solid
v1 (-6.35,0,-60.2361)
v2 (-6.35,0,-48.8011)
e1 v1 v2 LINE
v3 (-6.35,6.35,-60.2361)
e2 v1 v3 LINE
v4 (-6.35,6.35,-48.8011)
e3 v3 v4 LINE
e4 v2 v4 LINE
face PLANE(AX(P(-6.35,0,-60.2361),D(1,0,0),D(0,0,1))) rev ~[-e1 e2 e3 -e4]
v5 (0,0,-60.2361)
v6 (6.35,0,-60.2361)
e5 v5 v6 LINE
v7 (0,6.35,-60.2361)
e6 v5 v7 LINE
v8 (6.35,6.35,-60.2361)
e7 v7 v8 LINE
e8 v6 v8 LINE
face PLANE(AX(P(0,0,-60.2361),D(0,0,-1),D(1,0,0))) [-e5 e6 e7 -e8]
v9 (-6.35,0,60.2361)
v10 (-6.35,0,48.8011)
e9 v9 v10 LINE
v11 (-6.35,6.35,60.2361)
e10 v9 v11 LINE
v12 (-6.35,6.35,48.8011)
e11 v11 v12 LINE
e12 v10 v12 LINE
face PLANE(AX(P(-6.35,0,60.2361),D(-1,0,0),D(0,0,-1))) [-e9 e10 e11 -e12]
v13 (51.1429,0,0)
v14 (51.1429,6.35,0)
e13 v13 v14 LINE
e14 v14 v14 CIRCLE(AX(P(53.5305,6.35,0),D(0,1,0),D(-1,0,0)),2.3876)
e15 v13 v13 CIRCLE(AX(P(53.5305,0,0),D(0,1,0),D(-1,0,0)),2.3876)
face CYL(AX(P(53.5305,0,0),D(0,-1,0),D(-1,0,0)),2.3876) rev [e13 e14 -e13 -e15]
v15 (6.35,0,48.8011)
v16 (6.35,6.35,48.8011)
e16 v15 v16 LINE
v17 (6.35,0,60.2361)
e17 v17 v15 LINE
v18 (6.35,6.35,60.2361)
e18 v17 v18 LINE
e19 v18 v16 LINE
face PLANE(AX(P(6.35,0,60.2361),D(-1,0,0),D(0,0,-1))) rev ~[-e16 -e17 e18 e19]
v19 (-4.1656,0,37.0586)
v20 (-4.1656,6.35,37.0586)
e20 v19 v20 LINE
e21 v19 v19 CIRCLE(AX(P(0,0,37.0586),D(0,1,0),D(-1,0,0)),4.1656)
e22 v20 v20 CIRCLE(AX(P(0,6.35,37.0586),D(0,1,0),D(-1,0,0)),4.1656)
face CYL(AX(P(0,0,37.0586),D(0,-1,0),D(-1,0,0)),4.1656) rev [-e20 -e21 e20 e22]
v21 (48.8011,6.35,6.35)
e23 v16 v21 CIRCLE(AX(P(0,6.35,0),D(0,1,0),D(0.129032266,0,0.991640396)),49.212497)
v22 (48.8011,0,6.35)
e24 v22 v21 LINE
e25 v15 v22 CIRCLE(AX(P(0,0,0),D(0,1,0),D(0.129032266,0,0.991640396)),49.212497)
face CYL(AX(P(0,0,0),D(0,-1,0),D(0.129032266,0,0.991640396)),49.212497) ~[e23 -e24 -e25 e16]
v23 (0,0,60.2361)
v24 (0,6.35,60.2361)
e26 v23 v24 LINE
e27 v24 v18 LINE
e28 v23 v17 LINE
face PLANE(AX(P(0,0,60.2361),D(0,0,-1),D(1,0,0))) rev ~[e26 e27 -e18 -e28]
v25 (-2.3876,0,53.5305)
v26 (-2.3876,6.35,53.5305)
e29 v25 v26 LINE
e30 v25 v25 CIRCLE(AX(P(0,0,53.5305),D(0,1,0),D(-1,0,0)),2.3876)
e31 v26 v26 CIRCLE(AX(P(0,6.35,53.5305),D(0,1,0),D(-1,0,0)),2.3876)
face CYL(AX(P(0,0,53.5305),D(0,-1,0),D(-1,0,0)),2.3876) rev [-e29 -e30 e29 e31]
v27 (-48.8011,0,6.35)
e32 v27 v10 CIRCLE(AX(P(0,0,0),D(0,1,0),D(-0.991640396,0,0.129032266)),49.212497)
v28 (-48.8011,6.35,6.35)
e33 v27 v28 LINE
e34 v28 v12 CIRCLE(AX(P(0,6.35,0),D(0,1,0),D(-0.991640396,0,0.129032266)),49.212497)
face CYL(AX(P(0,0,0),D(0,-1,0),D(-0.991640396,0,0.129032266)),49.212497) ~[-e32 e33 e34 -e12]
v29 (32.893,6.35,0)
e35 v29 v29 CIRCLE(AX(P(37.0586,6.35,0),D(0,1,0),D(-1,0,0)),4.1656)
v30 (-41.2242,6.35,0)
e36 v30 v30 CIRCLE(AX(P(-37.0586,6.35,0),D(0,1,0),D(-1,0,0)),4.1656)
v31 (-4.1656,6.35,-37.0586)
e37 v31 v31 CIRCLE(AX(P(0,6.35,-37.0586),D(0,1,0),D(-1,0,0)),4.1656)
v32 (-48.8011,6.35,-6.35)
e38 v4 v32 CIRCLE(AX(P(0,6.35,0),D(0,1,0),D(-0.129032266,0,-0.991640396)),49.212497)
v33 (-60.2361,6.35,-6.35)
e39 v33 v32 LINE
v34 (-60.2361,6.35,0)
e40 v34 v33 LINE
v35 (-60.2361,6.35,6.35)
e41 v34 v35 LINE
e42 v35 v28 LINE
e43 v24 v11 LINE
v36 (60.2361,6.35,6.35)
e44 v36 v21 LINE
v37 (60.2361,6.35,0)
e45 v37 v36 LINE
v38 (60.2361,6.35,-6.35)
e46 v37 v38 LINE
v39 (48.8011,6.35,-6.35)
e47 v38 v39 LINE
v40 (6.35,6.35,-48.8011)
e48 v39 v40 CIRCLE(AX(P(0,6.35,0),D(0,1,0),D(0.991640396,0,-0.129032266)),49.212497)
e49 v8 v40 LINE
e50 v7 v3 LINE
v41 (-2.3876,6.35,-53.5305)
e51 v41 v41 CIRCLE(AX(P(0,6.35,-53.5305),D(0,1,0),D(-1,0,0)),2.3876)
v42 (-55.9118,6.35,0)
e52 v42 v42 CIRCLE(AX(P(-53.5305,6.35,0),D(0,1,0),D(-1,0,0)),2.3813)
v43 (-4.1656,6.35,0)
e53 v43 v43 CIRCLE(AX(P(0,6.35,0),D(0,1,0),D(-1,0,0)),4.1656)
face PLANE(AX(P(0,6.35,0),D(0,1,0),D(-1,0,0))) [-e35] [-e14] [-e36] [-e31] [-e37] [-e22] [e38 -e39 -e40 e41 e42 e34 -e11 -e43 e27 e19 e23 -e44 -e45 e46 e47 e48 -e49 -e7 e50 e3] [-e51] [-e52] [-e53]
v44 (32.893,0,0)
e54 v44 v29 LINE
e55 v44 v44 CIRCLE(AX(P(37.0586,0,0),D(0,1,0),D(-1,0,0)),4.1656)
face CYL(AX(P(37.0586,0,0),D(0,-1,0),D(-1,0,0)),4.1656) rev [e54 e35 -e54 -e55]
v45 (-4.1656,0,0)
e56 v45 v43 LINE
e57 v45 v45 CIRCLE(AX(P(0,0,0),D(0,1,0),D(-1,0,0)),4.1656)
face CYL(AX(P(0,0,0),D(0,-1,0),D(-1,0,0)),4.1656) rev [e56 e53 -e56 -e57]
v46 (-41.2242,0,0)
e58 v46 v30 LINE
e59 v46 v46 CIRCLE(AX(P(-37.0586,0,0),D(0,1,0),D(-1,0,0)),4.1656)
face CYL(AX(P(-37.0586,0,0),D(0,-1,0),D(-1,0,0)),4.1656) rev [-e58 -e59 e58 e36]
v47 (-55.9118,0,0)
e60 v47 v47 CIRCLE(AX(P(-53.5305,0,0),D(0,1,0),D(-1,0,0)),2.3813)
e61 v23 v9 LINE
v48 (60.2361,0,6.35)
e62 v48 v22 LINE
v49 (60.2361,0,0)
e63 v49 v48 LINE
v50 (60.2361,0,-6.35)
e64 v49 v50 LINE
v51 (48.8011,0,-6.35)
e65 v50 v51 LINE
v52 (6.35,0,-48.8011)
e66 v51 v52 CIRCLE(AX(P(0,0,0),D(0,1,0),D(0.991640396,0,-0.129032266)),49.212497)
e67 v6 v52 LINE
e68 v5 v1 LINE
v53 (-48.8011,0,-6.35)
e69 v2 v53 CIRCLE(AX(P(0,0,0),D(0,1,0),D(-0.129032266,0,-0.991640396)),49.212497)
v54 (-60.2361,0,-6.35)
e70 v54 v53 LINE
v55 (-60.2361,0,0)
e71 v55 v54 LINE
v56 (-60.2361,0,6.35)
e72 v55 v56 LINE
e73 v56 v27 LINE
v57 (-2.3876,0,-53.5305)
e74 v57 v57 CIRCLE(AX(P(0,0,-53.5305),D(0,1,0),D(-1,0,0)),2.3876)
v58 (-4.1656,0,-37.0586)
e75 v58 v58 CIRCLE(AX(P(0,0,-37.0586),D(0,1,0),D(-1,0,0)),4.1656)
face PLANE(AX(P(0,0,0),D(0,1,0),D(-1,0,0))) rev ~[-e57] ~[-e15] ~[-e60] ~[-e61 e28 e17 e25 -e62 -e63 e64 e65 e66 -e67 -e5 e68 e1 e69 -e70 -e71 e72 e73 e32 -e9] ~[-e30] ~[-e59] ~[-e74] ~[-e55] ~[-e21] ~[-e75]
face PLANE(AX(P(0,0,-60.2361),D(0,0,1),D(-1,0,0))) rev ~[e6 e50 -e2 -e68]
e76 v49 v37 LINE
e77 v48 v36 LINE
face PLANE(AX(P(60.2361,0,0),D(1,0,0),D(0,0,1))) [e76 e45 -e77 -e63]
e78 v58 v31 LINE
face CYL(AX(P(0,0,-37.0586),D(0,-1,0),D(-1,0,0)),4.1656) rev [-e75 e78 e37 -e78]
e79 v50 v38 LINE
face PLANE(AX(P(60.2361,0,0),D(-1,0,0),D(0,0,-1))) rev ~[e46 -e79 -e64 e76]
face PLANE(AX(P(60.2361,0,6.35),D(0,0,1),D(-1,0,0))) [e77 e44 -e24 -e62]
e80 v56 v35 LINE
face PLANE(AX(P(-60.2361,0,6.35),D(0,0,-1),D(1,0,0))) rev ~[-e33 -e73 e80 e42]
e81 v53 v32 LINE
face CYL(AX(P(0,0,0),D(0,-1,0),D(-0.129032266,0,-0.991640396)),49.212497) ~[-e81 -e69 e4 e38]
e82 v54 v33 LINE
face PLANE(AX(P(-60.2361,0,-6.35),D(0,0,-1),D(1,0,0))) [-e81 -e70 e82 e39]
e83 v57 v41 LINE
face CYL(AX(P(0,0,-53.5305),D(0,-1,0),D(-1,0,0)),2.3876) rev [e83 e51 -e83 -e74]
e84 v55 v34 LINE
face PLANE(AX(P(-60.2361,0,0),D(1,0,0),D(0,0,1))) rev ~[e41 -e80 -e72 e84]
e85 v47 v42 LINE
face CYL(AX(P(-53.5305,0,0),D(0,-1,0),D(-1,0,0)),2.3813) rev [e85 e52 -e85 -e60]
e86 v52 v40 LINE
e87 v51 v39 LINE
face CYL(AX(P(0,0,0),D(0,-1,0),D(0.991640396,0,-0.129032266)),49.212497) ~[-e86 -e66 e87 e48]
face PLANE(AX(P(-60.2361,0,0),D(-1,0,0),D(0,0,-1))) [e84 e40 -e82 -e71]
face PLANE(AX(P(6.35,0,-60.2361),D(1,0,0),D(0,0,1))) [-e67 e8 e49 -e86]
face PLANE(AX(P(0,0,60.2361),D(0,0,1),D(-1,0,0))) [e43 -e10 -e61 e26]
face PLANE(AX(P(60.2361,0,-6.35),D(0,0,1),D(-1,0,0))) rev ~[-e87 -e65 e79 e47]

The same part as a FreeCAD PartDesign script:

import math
import FreeCAD as App
import Part
import Sketcher
from FreeCAD import Vector
Q = App.Units.Quantity

doc = App.newDocument("Part")
body = doc.addObject("PartDesign::Body", "Body")

sketch1 = doc.addObject("Sketcher::SketchObject", "Sketch")
body.addObject(sketch1)
sketch1.AttachmentSupport = (doc.XZ_Plane, [""])
sketch1.MapMode = "FlatFace"
sketch1.addGeometry(Part.LineSegment(Vector(-6.3, 60.2, 0), Vector(6.3, 60.2, 0)), False)
sketch1.addGeometry(Part.LineSegment(Vector(6.3, 60.2, 0), Vector(6.3, 48.8, 0)), False)
sketch1.addGeometry(Part.ArcOfCircle(Part.Circle(Vector(0, 0, 0), Vector(0, 0, 1), 49.2), math.radians(7), math.radians(83)), False)
sketch1.addGeometry(Part.LineSegment(Vector(48.8, 6.3, 0), Vector(60.2, 6.3, 0)), False)
sketch1.addGeometry(Part.LineSegment(Vector(60.2, 6.3, 0), Vector(60.2, -6.3, 0)), False)
sketch1.addGeometry(Part.LineSegment(Vector(60.2, -6.3, 0), Vector(48.8, -6.3, 0)), False)
sketch1.addGeometry(Part.ArcOfCircle(Part.Circle(Vector(0, 0, 0), Vector(0, 0, 1), 49.2), math.radians(-83), math.radians(-7)), False)
sketch1.addGeometry(Part.LineSegment(Vector(6.3, -48.8, 0), Vector(6.3, -60.2, 0)), False)
sketch1.addGeometry(Part.LineSegment(Vector(6.3, -60.2, 0), Vector(-6.3, -60.2, 0)), False)
sketch1.addGeometry(Part.LineSegment(Vector(-6.3, -60.2, 0), Vector(-6.3, -48.8, 0)), False)
sketch1.addGeometry(Part.ArcOfCircle(Part.Circle(Vector(0, 0, 0), Vector(0, 0, 1), 49.2), math.radians(-173), math.radians(-97)), False)
sketch1.addGeometry(Part.LineSegment(Vector(-48.8, -6.3, 0), Vector(-60.2, -6.3, 0)), False)
sketch1.addGeometry(Part.LineSegment(Vector(-60.2, -6.3, 0), Vector(-60.2, 6.3, 0)), False)
sketch1.addGeometry(Part.LineSegment(Vector(-60.2, 6.3, 0), Vector(-48.8, 6.3, 0)), False)
sketch1.addGeometry(Part.ArcOfCircle(Part.Circle(Vector(0, 0, 0), Vector(0, 0, 1), 49.2), math.radians(97), math.radians(173)), False)
sketch1.addGeometry(Part.LineSegment(Vector(-6.3, 48.8, 0), Vector(-6.3, 60.2, 0)), False)
sketch1.addGeometry(Part.Circle(Vector(0, -53.5, 0), Vector(0, 0, 1), 2.4), False)
sketch1.addGeometry(Part.Circle(Vector(0, -37.1, 0), Vector(0, 0, 1), 4.2), False)
sketch1.addGeometry(Part.Circle(Vector(53.5, 0, 0), Vector(0, 0, 1), 2.4), False)
sketch1.addGeometry(Part.Circle(Vector(37.1, 0, 0), Vector(0, 0, 1), 4.2), False)
sketch1.addGeometry(Part.Circle(Vector(0, 0, 0), Vector(0, 0, 1), 4.2), False)
sketch1.addGeometry(Part.Circle(Vector(-37.1, 0, 0), Vector(0, 0, 1), 4.2), False)
sketch1.addGeometry(Part.Circle(Vector(-53.5, 0, 0), Vector(0, 0, 1), 2.4), False)
sketch1.addGeometry(Part.Circle(Vector(0, 37.1, 0), Vector(0, 0, 1), 4.2), False)
sketch1.addGeometry(Part.Circle(Vector(0, 53.5, 0), Vector(0, 0, 1), 2.4), False)
sketch1.addConstraint(Sketcher.Constraint("Coincident", 0, 2, 1, 1))
sketch1.addConstraint(Sketcher.Constraint("Coincident", 1, 2, 2, 2))
sketch1.addConstraint(Sketcher.Constraint("Coincident", 2, 1, 3, 1))
sketch1.addConstraint(Sketcher.Constraint("Coincident", 3, 2, 4, 1))
sketch1.addConstraint(Sketcher.Constraint("Coincident", 4, 2, 5, 1))
sketch1.addConstraint(Sketcher.Constraint("Coincident", 5, 2, 6, 2))
sketch1.addConstraint(Sketcher.Constraint("Coincident", 6, 1, 7, 1))
sketch1.addConstraint(Sketcher.Constraint("Coincident", 7, 2, 8, 1))
sketch1.addConstraint(Sketcher.Constraint("Coincident", 8, 2, 9, 1))
sketch1.addConstraint(Sketcher.Constraint("Coincident", 9, 2, 10, 2))
sketch1.addConstraint(Sketcher.Constraint("Coincident", 10, 1, 11, 1))
sketch1.addConstraint(Sketcher.Constraint("Coincident", 11, 2, 12, 1))
sketch1.addConstraint(Sketcher.Constraint("Coincident", 12, 2, 13, 1))
sketch1.addConstraint(Sketcher.Constraint("Coincident", 13, 2, 14, 2))
sketch1.addConstraint(Sketcher.Constraint("Coincident", 14, 1, 15, 1))
sketch1.addConstraint(Sketcher.Constraint("Coincident", 15, 2, 0, 1))
sketch1.addConstraint(Sketcher.Constraint("Horizontal", 0))
sketch1.addConstraint(Sketcher.Constraint("Vertical", 1))
sketch1.addConstraint(Sketcher.Constraint("Horizontal", 3))
sketch1.addConstraint(Sketcher.Constraint("Vertical", 4))
sketch1.addConstraint(Sketcher.Constraint("Horizontal", 5))
sketch1.addConstraint(Sketcher.Constraint("Vertical", 7))
sketch1.addConstraint(Sketcher.Constraint("Horizontal", 8))
sketch1.addConstraint(Sketcher.Constraint("Vertical", 9))
sketch1.addConstraint(Sketcher.Constraint("Horizontal", 11))
sketch1.addConstraint(Sketcher.Constraint("Vertical", 12))
sketch1.addConstraint(Sketcher.Constraint("Horizontal", 13))
sketch1.addConstraint(Sketcher.Constraint("Vertical", 15))
sketch1.addConstraint(Sketcher.Constraint("Coincident", 2, 3, -1, 1))
sketch1.addConstraint(Sketcher.Constraint("Coincident", 6, 3, -1, 1))
sketch1.addConstraint(Sketcher.Constraint("Coincident", 10, 3, -1, 1))
sketch1.addConstraint(Sketcher.Constraint("Coincident", 14, 3, -1, 1))
sketch1.addConstraint(Sketcher.Constraint("Coincident", 20, 3, -1, 1))
sketch1.addConstraint(Sketcher.Constraint("Equal", 2, 6))
sketch1.addConstraint(Sketcher.Constraint("Equal", 6, 10))
sketch1.addConstraint(Sketcher.Constraint("Equal", 10, 14))
sketch1.addConstraint(Sketcher.Constraint("Equal", 16, 18))
sketch1.addConstraint(Sketcher.Constraint("Equal", 17, 19))
sketch1.addConstraint(Sketcher.Constraint("Equal", 19, 20))
sketch1.addConstraint(Sketcher.Constraint("Equal", 20, 21))
sketch1.addConstraint(Sketcher.Constraint("Equal", 21, 23))
sketch1.addConstraint(Sketcher.Constraint("Equal", 18, 24))
sketch1.addConstraint(Sketcher.Constraint("Symmetric", 19, 3, 21, 3, -1, 1))
sketch1.addConstraint(Sketcher.Constraint("Symmetric", 18, 3, 22, 3, -1, 1))
sketch1.addConstraint(Sketcher.Constraint("Symmetric", 17, 3, 23, 3, -1, 1))
sketch1.addConstraint(Sketcher.Constraint("Symmetric", 16, 3, 24, 3, -1, 1))
sketch1.addConstraint(Sketcher.Constraint("Symmetric", 0, 2, 8, 2, -1, 1))
sketch1.addConstraint(Sketcher.Constraint("Symmetric", 3, 2, 11, 2, -1, 1))
sketch1.addConstraint(Sketcher.Constraint("PointOnObject", 16, 3, -2))
sketch1.addConstraint(Sketcher.Constraint("PointOnObject", 17, 3, -2))
sketch1.addConstraint(Sketcher.Constraint("PointOnObject", 18, 3, -1))
sketch1.addConstraint(Sketcher.Constraint("PointOnObject", 19, 3, -1))
sketch1.addConstraint(Sketcher.Constraint("Horizontal", 6, 1, 9, 2))
sketch1.addConstraint(Sketcher.Constraint("Horizontal", 5, 2, 10, 1))
sketch1.addConstraint(Sketcher.Constraint("Horizontal", 3, 2, 12, 2))
sketch1.addConstraint(Sketcher.Constraint("Horizontal", 1, 2, 14, 1))
sketch1.addConstraint(Sketcher.Constraint("Equal", 13, 1))
sketch1.addConstraint(Sketcher.Constraint("Equal", 8, 4))
sketch1.addConstraint(Sketcher.Constraint("Diameter", 16, Q("0.188 in")))
sketch1.addConstraint(Sketcher.Constraint("Diameter", 17, Q("0.328 in")))
sketch1.addConstraint(Sketcher.Constraint("Diameter", 22, Q("0.1875 in")))
sketch1.addConstraint(Sketcher.Constraint("DistanceX", 0, 1, 0, 2, Q("0.5 in")))
sketch1.addConstraint(Sketcher.Constraint("Radius", 2, Q("1.9375 in")))
sketch1.addConstraint(Sketcher.Constraint("DistanceY", 24, 3, 0, 2, Q("0.264 in")))
sketch1.addConstraint(Sketcher.Constraint("DistanceX", 18, 3, 3, 2, Q("0.264 in")))
sketch1.addConstraint(Sketcher.Constraint("DistanceX", 3, 1, 3, 2, Q("0.4502 in")))
sketch1.addConstraint(Sketcher.Constraint("DistanceY", 17, 3, -1, 1, Q("1.459 in")))
sketch1.addConstraint(Sketcher.Constraint("DistanceX", -1, 1, 19, 3, Q("1.459 in")))
pad1 = doc.addObject("PartDesign::Pad", "Pad")
body.addObject(pad1)
pad1.Profile = sketch1
pad1.Length = Q("0.25 in")
pad1.Reversed = True

doc.recompute()
